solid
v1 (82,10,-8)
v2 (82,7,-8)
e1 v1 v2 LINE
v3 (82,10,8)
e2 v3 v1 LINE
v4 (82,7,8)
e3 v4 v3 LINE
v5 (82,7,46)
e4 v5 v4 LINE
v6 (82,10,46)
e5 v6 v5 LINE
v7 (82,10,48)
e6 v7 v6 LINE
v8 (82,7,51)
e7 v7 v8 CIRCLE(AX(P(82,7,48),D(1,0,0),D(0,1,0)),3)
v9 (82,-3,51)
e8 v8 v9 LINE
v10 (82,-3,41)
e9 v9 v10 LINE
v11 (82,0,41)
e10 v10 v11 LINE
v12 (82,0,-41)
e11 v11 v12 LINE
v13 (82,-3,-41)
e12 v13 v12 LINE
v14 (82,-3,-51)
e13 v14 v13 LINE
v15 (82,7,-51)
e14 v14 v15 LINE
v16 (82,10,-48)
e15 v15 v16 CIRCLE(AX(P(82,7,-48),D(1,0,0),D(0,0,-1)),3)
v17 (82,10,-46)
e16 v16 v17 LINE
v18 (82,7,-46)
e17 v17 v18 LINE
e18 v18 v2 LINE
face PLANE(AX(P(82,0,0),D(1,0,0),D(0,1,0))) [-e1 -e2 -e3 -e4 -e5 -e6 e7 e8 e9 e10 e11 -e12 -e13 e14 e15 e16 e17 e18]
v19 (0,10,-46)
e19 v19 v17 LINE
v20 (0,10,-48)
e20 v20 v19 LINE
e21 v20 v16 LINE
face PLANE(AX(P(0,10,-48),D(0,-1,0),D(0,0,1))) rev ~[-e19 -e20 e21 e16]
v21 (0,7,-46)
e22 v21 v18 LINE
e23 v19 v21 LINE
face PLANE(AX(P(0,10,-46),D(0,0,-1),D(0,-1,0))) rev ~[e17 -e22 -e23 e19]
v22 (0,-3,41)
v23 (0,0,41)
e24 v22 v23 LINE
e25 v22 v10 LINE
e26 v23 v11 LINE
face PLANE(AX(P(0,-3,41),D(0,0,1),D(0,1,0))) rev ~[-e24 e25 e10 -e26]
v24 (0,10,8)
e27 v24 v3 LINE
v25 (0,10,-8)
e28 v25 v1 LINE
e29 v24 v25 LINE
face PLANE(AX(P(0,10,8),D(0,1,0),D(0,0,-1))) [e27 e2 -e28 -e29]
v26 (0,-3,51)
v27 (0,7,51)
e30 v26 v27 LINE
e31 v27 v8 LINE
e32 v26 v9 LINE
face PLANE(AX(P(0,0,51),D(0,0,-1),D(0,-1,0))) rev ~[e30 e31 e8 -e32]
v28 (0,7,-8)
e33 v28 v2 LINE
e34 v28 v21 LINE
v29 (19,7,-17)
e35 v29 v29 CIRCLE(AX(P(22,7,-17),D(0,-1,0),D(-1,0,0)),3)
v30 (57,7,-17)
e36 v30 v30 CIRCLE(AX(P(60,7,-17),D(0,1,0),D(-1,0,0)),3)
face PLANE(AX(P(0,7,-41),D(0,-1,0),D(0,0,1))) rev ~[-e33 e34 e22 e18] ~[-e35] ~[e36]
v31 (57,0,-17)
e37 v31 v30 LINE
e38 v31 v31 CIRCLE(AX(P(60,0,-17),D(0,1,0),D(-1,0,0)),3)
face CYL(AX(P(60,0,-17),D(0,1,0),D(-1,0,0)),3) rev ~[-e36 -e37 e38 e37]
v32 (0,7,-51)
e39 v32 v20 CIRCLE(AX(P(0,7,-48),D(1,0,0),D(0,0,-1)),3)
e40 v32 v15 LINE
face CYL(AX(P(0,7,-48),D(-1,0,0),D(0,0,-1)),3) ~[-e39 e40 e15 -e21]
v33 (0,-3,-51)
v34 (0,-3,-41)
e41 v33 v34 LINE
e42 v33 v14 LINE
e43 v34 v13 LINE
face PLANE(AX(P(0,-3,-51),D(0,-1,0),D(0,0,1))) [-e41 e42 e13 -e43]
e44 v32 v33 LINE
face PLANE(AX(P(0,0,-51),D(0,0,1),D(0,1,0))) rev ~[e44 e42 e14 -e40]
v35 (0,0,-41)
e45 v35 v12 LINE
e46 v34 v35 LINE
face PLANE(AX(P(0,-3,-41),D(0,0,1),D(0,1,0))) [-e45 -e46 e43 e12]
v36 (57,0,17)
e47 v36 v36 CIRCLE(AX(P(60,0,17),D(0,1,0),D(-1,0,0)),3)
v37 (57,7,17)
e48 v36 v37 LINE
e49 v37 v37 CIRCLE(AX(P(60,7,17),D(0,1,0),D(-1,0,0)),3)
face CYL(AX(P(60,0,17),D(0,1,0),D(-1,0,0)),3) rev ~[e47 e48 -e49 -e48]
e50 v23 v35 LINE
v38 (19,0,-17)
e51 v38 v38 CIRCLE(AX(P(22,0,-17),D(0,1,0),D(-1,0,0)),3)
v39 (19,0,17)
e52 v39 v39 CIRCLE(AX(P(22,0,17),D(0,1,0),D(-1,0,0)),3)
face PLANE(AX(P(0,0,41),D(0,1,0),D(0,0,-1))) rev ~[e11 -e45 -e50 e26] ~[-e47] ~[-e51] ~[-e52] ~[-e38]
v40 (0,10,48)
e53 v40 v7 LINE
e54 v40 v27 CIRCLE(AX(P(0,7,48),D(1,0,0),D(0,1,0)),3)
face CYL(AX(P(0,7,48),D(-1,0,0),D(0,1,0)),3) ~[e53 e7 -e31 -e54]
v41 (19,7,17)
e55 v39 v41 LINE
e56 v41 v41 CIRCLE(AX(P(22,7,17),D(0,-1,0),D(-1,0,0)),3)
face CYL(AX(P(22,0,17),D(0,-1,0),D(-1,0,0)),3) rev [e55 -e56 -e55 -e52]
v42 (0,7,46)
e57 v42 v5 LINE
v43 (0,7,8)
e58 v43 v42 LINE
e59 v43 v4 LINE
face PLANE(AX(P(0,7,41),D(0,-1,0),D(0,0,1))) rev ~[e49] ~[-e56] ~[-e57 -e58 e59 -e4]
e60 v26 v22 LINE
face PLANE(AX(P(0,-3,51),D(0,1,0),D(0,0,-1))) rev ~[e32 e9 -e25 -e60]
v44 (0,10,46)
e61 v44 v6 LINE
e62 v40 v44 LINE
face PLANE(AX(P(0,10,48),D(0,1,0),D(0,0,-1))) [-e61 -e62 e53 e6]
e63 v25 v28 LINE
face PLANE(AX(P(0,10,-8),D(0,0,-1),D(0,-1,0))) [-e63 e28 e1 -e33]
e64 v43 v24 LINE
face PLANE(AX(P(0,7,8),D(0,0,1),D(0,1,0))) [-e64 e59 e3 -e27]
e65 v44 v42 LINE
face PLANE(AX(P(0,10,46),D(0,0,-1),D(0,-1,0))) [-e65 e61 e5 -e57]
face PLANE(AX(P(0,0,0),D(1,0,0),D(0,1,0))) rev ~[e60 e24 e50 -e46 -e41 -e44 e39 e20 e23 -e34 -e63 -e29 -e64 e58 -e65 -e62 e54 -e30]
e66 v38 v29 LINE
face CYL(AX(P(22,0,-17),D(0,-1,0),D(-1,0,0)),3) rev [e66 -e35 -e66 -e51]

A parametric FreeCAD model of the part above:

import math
import FreeCAD as App
import Part
import Sketcher

V = App.Vector

doc = App.newDocument("Part")
body = doc.addObject("PartDesign::Body", "Body")

sketch1 = doc.addObject("Sketcher::SketchObject", "Sketch")
body.addObject(sketch1)
sketch1.AttachmentSupport = (doc.YZ_Plane, [""])
sketch1.MapMode = "FlatFace"
sketch1.addGeometry([
    Part.LineSegment(V(7, 46, 0), V(10, 46, 0)),
    Part.LineSegment(V(10, 46, 0), V(10, 48, 0)),
    Part.ArcOfCircle(Part.Circle(V(7, 48, 0), V(0, 0, 1), 3), math.radians(0), math.radians(90)),
    Part.LineSegment(V(7, 51, 0), V(-3, 51, 0)),
    Part.LineSegment(V(-3, 51, 0), V(-3, 41, 0)),
    Part.LineSegment(V(-3, 41, 0), V(0, 41, 0)),
    Part.LineSegment(V(0, 41, 0), V(0, -41, 0)),
    Part.LineSegment(V(0, -41, 0), V(-3, -41, 0)),
    Part.LineSegment(V(-3, -41, 0), V(-3, -51, 0)),
    Part.LineSegment(V(-3, -51, 0), V(7, -51, 0)),
    Part.ArcOfCircle(Part.Circle(V(7, -48, 0), V(0, 0, 1), 3), math.radians(-90), math.radians(0)),
    Part.LineSegment(V(10, -48, 0), V(10, -46, 0)),
    Part.LineSegment(V(10, -46, 0), V(7, -46, 0)),
    Part.LineSegment(V(7, -46, 0), V(7, -8, 0)),
    Part.LineSegment(V(7, -8, 0), V(10, -8, 0)),
    Part.LineSegment(V(10, -8, 0), V(10, 8, 0)),
    Part.LineSegment(V(10, 8, 0), V(7, 8, 0)),
    Part.LineSegment(V(7, 8, 0), V(7, 46, 0)),
], False)
sketch1.addConstraint([
    Sketcher.Constraint("Coincident", 0, 2, 1, 1),
    Sketcher.Constraint("Tangent", 1, 2, 2, 1),
    Sketcher.Constraint("Tangent", 2, 2, 3, 1),
    Sketcher.Constraint("Coincident", 3, 2, 4, 1),
    Sketcher.Constraint("Coincident", 4, 2, 5, 1),
    Sketcher.Constraint("Coincident", 5, 2, 6, 1),
    Sketcher.Constraint("Coincident", 6, 2, 7, 1),
    Sketcher.Constraint("Coincident", 7, 2, 8, 1),
    Sketcher.Constraint("Coincident", 8, 2, 9, 1),
    Sketcher.Constraint("Tangent", 9, 2, 10, 1),
    Sketcher.Constraint("Tangent", 10, 2, 11, 1),
    Sketcher.Constraint("Coincident", 11, 2, 12, 1),
    Sketcher.Constraint("Coincident", 12, 2, 13, 1),
    Sketcher.Constraint("Coincident", 13, 2, 14, 1),
    Sketcher.Constraint("Coincident", 14, 2, 15, 1),
    Sketcher.Constraint("Coincident", 15, 2, 16, 1),
    Sketcher.Constraint("Coincident", 16, 2, 17, 1),
    Sketcher.Constraint("Coincident", 17, 2, 0, 1),
    Sketcher.Constraint("Horizontal", 0),
    Sketcher.Constraint("Vertical", 1),
    Sketcher.Constraint("Horizontal", 3),
    Sketcher.Constraint("Vertical", 4),
    Sketcher.Constraint("Horizontal", 5),
    Sketcher.Constraint("Vertical", 6),
    Sketcher.Constraint("Horizontal", 7),
    Sketcher.Constraint("Vertical", 8),
    Sketcher.Constraint("Horizontal", 9),
    Sketcher.Constraint("Vertical", 11),
    Sketcher.Constraint("Horizontal", 12),
    Sketcher.Constraint("Vertical", 13),
    Sketcher.Constraint("Horizontal", 14),
    Sketcher.Constraint("Vertical", 15),
    Sketcher.Constraint("Horizontal", 16),
    Sketcher.Constraint("Vertical", 17),
    Sketcher.Constraint("Equal", 2, 10),
    Sketcher.Constraint("Symmetric", 5, 2, 6, 2, -1, 1),
    Sketcher.Constraint("Symmetric", 2, 3, 10, 3, -1),
    Sketcher.Constraint("Symmetric", 13, 2, 16, 2, -1),
    Sketcher.Constraint("Vertical", 4, 2, 7, 2),
    Sketcher.Constraint("Vertical", 9, 2, 12, 2),
    Sketcher.Constraint("Vertical", 11, 2, 14, 2),
    Sketcher.Constraint("Equal", 0, 5),
    Sketcher.Constraint("Equal", 9, 4),
    Sketcher.Constraint("Equal", 1, 11),
    Sketcher.Constraint("Radius", 2, 3.0),
    Sketcher.Constraint("DistanceX", 3, 2, 3, 1, 10.0),
    Sketcher.Constraint("DistanceY", 0, 2, 2, 2, 5.0),
    Sketcher.Constraint("DistanceY", 6, 2, 6, 1, 82.0),
    Sketcher.Constraint("DistanceY", 13, 1, 13, 2, 38.0),
])
pad1 = doc.addObject("PartDesign::Pad", "Pad")
body.addObject(pad1)
pad1.Profile = sketch1
pad1.Length = 82

sketch2 = doc.addObject("Sketcher::SketchObject", "Sketch001")
body.addObject(sketch2)
sketch2.AttachmentSupport = (doc.XZ_Plane, [""])
sketch2.MapMode = "FlatFace"
sketch2.addGeometry([
    Part.Circle(V(60, 17, 0), V(0, 0, 1), 3),
    Part.Circle(V(60, -17, 0), V(0, 0, 1), 3),
    Part.Circle(V(22, -17, 0), V(0, 0, 1), 3),
    Part.Circle(V(22, 17, 0), V(0, 0, 1), 3),
], False)
sketch2.addConstraint([
    Sketcher.Constraint("Equal", 0, 1),
    Sketcher.Constraint("Equal", 1, 2),
    Sketcher.Constraint("Equal", 2, 3),
    Sketcher.Constraint("Symmetric", 0, 3, 1, 3, -1),
    Sketcher.Constraint("Symmetric", 2, 3, 3, 3, -1),
    Sketcher.Constraint("Horizontal", 1, 3, 2, 3),
    Sketcher.Constraint("Diameter", 0, 6.0),
    Sketcher.Constraint("DistanceX", -1, 1, 2, 3, 22.0),
    Sketcher.Constraint("DistanceY", 1, 3, 0, 3, 34.0),
    Sketcher.Constraint("DistanceX", -1, 1, 0, 3, 60.0),
])
pocket1 = doc.addObject("PartDesign::Pocket", "Pocket")
body.addObject(pocket1)
pocket1.Profile = sketch2
pocket1.Length = 62
pocket1.Midplane = True

doc.recompute()
